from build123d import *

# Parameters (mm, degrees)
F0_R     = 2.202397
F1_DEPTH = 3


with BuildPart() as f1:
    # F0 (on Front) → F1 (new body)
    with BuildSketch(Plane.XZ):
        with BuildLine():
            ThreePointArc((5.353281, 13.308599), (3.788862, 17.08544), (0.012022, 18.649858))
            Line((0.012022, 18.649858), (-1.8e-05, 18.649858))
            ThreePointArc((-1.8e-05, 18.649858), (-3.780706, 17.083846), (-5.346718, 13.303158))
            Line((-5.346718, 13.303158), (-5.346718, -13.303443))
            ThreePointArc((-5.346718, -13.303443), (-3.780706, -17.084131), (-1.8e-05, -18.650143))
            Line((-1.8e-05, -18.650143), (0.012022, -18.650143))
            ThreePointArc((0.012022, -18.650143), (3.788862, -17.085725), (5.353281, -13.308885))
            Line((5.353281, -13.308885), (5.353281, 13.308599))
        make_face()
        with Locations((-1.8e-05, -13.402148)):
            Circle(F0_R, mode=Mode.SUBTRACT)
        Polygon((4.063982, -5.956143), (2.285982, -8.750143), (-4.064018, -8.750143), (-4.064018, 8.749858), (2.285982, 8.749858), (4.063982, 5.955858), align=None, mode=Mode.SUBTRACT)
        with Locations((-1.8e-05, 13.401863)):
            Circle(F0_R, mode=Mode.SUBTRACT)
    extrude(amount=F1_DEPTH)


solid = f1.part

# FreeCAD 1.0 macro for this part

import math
import FreeCAD as App
import Part
import Sketcher
from FreeCAD import Vector


def add_polygon(sketch, points):
    """Adds a closed chain of lines whose ends are joined by coincident constraints."""
    first, n = sketch.GeometryCount, len(points)
    for a, b in zip(points, points[1:] + points[:1]):
        sketch.addGeometry(Part.LineSegment(App.Vector(*a, 0), App.Vector(*b, 0)), False)
    for i in range(n):
        sketch.addConstraint(Sketcher.Constraint("Coincident", first + i, 2, first + (i + 1) % n, 1))

doc = App.newDocument("Part")
body = doc.addObject("PartDesign::Body", "Body")

sketch1 = doc.addObject("Sketcher::SketchObject", "Sketch")
body.addObject(sketch1)
sketch1.AttachmentSupport = (doc.XZ_Plane, [""])
sketch1.MapMode = "FlatFace"
sketch1.addGeometry(Part.ArcOfCircle(Part.Circle(Vector(0.012, 13.309, 0), Vector(0, 0, 1), 5.341), math.radians(0), math.radians(90)), False)
sketch1.addGeometry(Part.LineSegment(Vector(0.012, 18.65, 0), Vector(0, 18.65, 0)), False)
sketch1.addGeometry(Part.ArcOfCircle(Part.Circle(Vector(0, 13.303, 0), Vector(0, 0, 1), 5.347), math.radians(90), math.radians(180)), False)
sketch1.addGeometry(Part.LineSegment(Vector(-5.347, 13.303, 0), Vector(-5.347, -13.303, 0)), False)
sketch1.addGeometry(Part.ArcOfCircle(Part.Circle(Vector(0, -13.303, 0), Vector(0, 0, 1), 5.347), math.radians(180), math.radians(270)), False)
sketch1.addGeometry(Part.LineSegment(Vector(0, -18.65, 0), Vector(0.012, -18.65, 0)), False)
sketch1.addGeometry(Part.ArcOfCircle(Part.Circle(Vector(0.012, -13.309, 0), Vector(0, 0, 1), 5.341), math.radians(-90), math.radians(0)), False)
sketch1.addGeometry(Part.LineSegment(Vector(5.353, -13.309, 0), Vector(5.353, 13.309, 0)), False)
sketch1.addGeometry(Part.Circle(Vector(0, -13.402, 0), Vector(0, 0, 1), 2.202), False)
add_polygon(sketch1, [(4.064, 5.956), (4.064, -5.956), (2.286, -8.75), (-4.064, -8.75), (-4.064, 8.75), (2.286, 8.75)])
sketch1.addGeometry(Part.Circle(Vector(0, 13.402, 0), Vector(0, 0, 1), 2.202), False)
sketch1.addConstraint(Sketcher.Constraint("Tangent", 0, 2, 1, 1))
sketch1.addConstraint(Sketcher.Constraint("Tangent", 1, 2, 2, 1))
sketch1.addConstraint(Sketcher.Constraint("Tangent", 2, 2, 3, 1))
sketch1.addConstraint(Sketcher.Constraint("Tangent", 3, 2, 4, 1))
sketch1.addConstraint(Sketcher.Constraint("Tangent", 4, 2, 5, 1))
sketch1.addConstraint(Sketcher.Constraint("Tangent", 5, 2, 6, 1))
sketch1.addConstraint(Sketcher.Constraint("Tangent", 6, 2, 7, 1))
sketch1.addConstraint(Sketcher.Constraint("Tangent", 7, 2, 0, 1))
sketch1.addConstraint(Sketcher.Constraint("Vertical", 3))
sketch1.addConstraint(Sketcher.Constraint("Vertical", 7))
sketch1.addConstraint(Sketcher.Constraint("Vertical", 9))
sketch1.addConstraint(Sketcher.Constraint("Horizontal", 11))
sketch1.addConstraint(Sketcher.Constraint("Vertical", 12))
sketch1.addConstraint(Sketcher.Constraint("Horizontal", 13))
sketch1.addConstraint(Sketcher.Constraint("Equal", 2, 4))
sketch1.addConstraint(Sketcher.Constraint("Equal", 0, 6))
sketch1.addConstraint(Sketcher.Constraint("Equal", 8, 15))
sketch1.addConstraint(Sketcher.Constraint("Vertical", 4, 3, 8, 3))
sketch1.addConstraint(Sketcher.Constraint("Vertical", 8, 3, 15, 3))
sketch1.addConstraint(Sketcher.Constraint("Vertical", 6, 3, 0, 2))
sketch1.addConstraint(Sketcher.Constraint("Vertical", 1, 2, 4, 2))
sketch1.addConstraint(Sketcher.Constraint("Vertical", 10, 2, 13, 2))
sketch1.addConstraint(Sketcher.Constraint("Equal", 10, 14))
sketch1.addConstraint(Sketcher.Constraint("DistanceY", 12, 1, 12, 2, 17.500001))
sketch1.addConstraint(Sketcher.Constraint("DistanceX", 11, 2, 11, 1, 6.35))
sketch1.addConstraint(Sketcher.Constraint("Radius", 2, 5.346699))
sketch1.addConstraint(Sketcher.Constraint("DistanceY", 9, 2, 9, 1, 11.912001))
sketch1.addConstraint(Sketcher.Constraint("Radius", 0, 5.341259))
sketch1.addConstraint(Sketcher.Constraint("Diameter", 8, 4.404794))
sketch1.addConstraint(Sketcher.Constraint("DistanceY", 3, 2, 3, 1, 26.606601))
sketch1.addConstraint(Sketcher.Constraint("DistanceX", 4, 3, 9, 2, 4.064001))
sketch1.addConstraint(Sketcher.Constraint("DistanceX", 10, 2, 9, 2, 1.778))
sketch1.addConstraint(Sketcher.Constraint("DistanceX", 1, 2, 1, 1, 0.01204))
sketch1.addConstraint(Sketcher.Constraint("DistanceY", -1, 1, 0, 3, 13.308599))
sketch1.addConstraint(Sketcher.Constraint("DistanceY", 4, 3, 9, 2, 7.347301))
sketch1.addConstraint(Sketcher.Constraint("DistanceX", -1, 1, 0, 2, 0.012022))
sketch1.addConstraint(Sketcher.Constraint("DistanceY", 8, 3, 15, 3, 26.804011))
sketch1.addConstraint(Sketcher.Constraint("DistanceY", 8, 3, -1, 1, 13.402148))
pad1 = doc.addObject("PartDesign::Pad", "Pad")
body.addObject(pad1)
pad1.Profile = sketch1
pad1.Length = 3

doc.recompute()
